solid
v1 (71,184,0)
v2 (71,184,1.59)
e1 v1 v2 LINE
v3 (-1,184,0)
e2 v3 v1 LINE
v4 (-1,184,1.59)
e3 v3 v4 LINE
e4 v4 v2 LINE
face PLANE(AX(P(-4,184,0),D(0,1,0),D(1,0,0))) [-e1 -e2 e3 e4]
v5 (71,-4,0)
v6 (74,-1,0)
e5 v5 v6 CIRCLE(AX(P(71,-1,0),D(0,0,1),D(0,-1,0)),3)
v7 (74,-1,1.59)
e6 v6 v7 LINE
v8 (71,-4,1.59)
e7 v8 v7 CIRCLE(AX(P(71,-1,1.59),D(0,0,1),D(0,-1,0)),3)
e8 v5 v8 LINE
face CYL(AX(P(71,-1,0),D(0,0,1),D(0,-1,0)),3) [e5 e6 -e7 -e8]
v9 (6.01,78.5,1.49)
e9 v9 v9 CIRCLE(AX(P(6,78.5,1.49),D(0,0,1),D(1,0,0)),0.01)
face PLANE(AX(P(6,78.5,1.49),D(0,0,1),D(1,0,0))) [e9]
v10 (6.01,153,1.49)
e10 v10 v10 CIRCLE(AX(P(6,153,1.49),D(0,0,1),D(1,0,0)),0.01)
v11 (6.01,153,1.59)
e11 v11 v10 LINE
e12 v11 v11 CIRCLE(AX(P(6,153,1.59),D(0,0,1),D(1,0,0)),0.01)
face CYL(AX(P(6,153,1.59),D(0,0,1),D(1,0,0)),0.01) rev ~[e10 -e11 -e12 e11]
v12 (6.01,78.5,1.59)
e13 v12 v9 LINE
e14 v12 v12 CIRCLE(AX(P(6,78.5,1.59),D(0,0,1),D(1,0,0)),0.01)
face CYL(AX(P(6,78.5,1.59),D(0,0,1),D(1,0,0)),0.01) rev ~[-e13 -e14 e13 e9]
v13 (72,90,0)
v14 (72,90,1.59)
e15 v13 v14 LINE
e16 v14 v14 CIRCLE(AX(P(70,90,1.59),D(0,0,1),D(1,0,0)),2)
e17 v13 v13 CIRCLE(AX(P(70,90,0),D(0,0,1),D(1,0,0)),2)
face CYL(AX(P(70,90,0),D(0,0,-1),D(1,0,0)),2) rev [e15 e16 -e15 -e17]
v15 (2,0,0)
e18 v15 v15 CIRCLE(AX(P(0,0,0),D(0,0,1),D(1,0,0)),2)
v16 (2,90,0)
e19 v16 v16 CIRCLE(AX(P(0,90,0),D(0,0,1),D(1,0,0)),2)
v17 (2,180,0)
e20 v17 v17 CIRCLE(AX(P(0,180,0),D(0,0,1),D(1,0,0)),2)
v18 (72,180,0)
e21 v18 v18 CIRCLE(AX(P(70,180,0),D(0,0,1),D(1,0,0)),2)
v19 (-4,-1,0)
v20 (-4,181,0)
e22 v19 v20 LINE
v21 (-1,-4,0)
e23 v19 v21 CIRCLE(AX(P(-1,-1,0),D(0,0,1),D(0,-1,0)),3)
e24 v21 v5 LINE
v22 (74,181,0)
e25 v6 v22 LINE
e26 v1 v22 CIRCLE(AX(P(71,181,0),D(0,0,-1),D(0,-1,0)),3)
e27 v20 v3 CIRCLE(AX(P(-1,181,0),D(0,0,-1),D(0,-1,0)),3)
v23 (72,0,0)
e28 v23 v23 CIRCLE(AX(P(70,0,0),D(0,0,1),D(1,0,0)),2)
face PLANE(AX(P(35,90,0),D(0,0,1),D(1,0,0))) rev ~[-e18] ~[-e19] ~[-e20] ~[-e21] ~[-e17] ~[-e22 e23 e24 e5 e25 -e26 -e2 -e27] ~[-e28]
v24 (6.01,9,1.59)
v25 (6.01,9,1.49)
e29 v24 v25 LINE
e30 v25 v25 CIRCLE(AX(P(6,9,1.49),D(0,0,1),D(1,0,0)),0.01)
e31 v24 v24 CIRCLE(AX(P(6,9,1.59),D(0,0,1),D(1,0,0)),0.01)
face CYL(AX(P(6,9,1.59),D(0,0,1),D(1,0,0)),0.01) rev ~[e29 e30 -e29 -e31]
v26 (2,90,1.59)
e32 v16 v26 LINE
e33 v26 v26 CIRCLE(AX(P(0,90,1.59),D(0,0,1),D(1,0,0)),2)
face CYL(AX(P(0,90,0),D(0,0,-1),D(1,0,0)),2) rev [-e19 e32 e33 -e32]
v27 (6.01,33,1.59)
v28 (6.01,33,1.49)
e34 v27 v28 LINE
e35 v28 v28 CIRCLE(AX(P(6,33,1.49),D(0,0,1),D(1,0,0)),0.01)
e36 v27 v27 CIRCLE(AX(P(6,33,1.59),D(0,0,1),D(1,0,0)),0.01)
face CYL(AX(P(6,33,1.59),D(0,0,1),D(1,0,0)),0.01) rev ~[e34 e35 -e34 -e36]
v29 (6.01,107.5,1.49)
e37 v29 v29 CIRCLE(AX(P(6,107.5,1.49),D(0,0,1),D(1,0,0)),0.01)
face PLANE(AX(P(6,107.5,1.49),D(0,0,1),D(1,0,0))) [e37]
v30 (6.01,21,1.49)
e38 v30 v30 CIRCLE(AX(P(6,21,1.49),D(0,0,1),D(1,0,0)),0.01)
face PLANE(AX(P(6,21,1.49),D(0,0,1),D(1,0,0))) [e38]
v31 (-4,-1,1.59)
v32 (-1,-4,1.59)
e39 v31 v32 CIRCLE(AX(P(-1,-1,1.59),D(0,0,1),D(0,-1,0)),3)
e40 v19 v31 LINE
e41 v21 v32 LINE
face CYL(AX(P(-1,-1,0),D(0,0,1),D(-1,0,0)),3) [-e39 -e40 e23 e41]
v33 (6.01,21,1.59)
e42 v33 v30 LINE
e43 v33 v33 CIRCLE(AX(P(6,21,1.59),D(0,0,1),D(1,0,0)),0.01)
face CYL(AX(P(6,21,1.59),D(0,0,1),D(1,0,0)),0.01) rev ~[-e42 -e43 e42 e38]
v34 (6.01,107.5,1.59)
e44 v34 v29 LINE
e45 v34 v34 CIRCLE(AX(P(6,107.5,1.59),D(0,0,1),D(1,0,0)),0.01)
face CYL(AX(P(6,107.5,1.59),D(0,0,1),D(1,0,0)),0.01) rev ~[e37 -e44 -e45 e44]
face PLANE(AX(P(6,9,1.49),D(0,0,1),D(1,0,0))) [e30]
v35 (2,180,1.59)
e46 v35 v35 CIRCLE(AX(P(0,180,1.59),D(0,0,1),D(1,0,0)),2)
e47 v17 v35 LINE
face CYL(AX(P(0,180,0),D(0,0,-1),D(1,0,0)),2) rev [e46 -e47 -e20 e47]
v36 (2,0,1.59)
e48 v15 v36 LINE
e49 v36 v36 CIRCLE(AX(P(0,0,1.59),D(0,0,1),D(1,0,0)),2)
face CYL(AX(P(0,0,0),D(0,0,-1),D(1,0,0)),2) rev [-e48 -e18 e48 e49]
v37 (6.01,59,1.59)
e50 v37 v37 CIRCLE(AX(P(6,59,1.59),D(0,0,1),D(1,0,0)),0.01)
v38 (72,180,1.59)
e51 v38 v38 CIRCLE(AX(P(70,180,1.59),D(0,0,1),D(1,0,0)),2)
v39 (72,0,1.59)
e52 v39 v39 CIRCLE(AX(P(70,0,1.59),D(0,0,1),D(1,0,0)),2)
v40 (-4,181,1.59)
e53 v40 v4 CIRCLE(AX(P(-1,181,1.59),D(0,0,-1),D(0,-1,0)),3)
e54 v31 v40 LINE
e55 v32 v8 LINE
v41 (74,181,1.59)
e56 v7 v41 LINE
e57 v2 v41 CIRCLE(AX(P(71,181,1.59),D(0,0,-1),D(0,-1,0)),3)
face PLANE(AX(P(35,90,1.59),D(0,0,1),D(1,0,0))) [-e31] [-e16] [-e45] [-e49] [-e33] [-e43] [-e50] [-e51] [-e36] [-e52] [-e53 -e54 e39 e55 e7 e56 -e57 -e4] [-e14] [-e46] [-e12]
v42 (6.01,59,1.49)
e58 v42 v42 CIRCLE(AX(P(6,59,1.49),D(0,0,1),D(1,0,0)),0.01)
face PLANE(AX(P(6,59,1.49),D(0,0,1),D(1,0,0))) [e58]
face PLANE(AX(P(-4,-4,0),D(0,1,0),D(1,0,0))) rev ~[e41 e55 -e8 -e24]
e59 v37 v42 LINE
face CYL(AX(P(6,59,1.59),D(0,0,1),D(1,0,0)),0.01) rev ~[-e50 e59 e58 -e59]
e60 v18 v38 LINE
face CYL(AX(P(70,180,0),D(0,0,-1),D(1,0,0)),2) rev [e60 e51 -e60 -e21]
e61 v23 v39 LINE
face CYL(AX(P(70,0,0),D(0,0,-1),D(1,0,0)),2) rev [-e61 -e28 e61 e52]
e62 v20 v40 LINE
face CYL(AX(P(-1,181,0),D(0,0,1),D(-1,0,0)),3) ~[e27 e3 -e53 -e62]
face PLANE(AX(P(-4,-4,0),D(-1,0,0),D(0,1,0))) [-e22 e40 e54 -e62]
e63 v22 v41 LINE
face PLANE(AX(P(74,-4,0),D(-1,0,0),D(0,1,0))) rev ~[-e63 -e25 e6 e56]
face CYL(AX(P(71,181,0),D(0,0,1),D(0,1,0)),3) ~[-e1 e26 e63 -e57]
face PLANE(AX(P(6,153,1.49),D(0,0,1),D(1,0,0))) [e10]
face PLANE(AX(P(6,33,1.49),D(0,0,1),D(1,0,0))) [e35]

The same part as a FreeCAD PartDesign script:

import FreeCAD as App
import Part
import Sketcher


def edges_at(feature, points):
    """Names of the edges that pass closest to the given points."""
    edges = feature.Shape.Edges
    near = lambda p: min(range(len(edges)), key=lambda i: edges[i].distToShape(Part.Vertex(*p))[0])
    return sorted({f"Edge{near(p) + 1}" for p in points})


def add_polygon(sketch, points):
    """Adds a closed chain of lines whose ends are joined by coincident constraints."""
    first, n = sketch.GeometryCount, len(points)
    for a, b in zip(points, points[1:] + points[:1]):
        sketch.addGeometry(Part.LineSegment(App.Vector(*a, 0), App.Vector(*b, 0)), False)
    for i in range(n):
        sketch.addConstraint(Sketcher.Constraint("Coincident", first + i, 2, first + (i + 1) % n, 1))

doc = App.newDocument("Part")
body = doc.addObject("PartDesign::Body", "Body")

# Sketch on XY plane
sketch1 = body.newObject("Sketcher::SketchObject", "Sketch")
sketch1.AttachmentSupport = (doc.getObject("XY_Plane"), [""])
sketch1.MapMode = "FlatFace"
add_polygon(sketch1, [(-4, 184), (-4, -4), (74, -4), (74, 184)])  # lines 0-3
sketch1.addGeometry(Part.Circle(App.Vector(0, 0, 0), App.Vector(0, 0, 1), 2), False)  # 4
sketch1.addGeometry(Part.Circle(App.Vector(70, 0, 0), App.Vector(0, 0, 1), 2), False)  # 5
sketch1.addGeometry(Part.Circle(App.Vector(0, 90, 0), App.Vector(0, 0, 1), 2), False)  # 6
sketch1.addGeometry(Part.Circle(App.Vector(0, 180, 0), App.Vector(0, 0, 1), 2), False)  # 7
sketch1.addGeometry(Part.Circle(App.Vector(70, 90, 0), App.Vector(0, 0, 1), 2), False)  # 8
sketch1.addGeometry(Part.Circle(App.Vector(70, 180, 0), App.Vector(0, 0, 1), 2), False)  # 9
sketch1.addConstraint([
    Sketcher.Constraint("Vertical", 0),
    Sketcher.Constraint("Horizontal", 1),
    Sketcher.Constraint("Vertical", 2),
    Sketcher.Constraint("Horizontal", 3),
    Sketcher.Constraint("Coincident", 4, 3, -1, 1),
    Sketcher.Constraint("Equal", 4, 5),
    Sketcher.Constraint("Equal", 5, 6),
    Sketcher.Constraint("Equal", 6, 7),
    Sketcher.Constraint("Equal", 7, 8),
    Sketcher.Constraint("Equal", 8, 9),
    Sketcher.Constraint("PointOnObject", 5, 3, -1),
    Sketcher.Constraint("PointOnObject", 6, 3, -2),
    Sketcher.Constraint("PointOnObject", 7, 3, -2),
    Sketcher.Constraint("Horizontal", 6, 3, 8, 3),
    Sketcher.Constraint("Horizontal", 7, 3, 9, 3),
    Sketcher.Constraint("Vertical", 5, 3, 8, 3),
    Sketcher.Constraint("Vertical", 8, 3, 9, 3),
    Sketcher.Constraint("Diameter", 4, 4.0),
    Sketcher.Constraint("DistanceX", 1, 1, 1, 2, 78.0),
    Sketcher.Constraint("DistanceY", 0, 2, 0, 1, 188.0),
    Sketcher.Constraint("DistanceX", -1, 1, 5, 3, 70.0),
    Sketcher.Constraint("DistanceY", -1, 1, 6, 3, 90.0),
    Sketcher.Constraint("DistanceY", -1, 1, 7, 3, 180.0),
    Sketcher.Constraint("DistanceX", 0, 2, -1, 1, 4.0),
    Sketcher.Constraint("DistanceY", 0, 2, -1, 1, 4.0),
])
pad1 = body.newObject("PartDesign::Pad", "Pad")
pad1.Profile = sketch1
pad1.Length = 1.59
doc.recompute()

fillet = body.newObject("PartDesign::Fillet", "Fillet")
fillet.Base = (pad1, edges_at(pad1, [
    (-4, -4, 0.795),
    (74, -4, 0.795),
    (74, 184, 0.795),
    (-4, 184, 0.795),
]))
fillet.Radius = 3

# Sketch on XY plane
sketch2 = body.newObject("Sketcher::SketchObject", "Sketch001")
sketch2.AttachmentSupport = (doc.getObject("XY_Plane"), [""])
sketch2.MapMode = "FlatFace"
sketch2.AttachmentOffset = App.Placement(App.Vector(0, 0, 1.59), App.Rotation())
sketch2.addGeometry([
    Part.Circle(App.Vector(6, 153, 0), App.Vector(0, 0, 1), 0.01),  # 0
    Part.Circle(App.Vector(6, 107.5, 0), App.Vector(0, 0, 1), 0.01),  # 1
    Part.Circle(App.Vector(6, 78.5, 0), App.Vector(0, 0, 1), 0.01),  # 2
    Part.Circle(App.Vector(6, 59, 0), App.Vector(0, 0, 1), 0.01),  # 3
    Part.Circle(App.Vector(6, 33, 0), App.Vector(0, 0, 1), 0.01),  # 4
    Part.Circle(App.Vector(6, 21, 0), App.Vector(0, 0, 1), 0.01),  # 5
    Part.Circle(App.Vector(6, 9, 0), App.Vector(0, 0, 1), 0.01),  # 6
], False)
sketch2.addConstraint([
    Sketcher.Constraint("Equal", 0, 1),
    Sketcher.Constraint("Equal", 1, 2),
    Sketcher.Constraint("Equal", 2, 3),
    Sketcher.Constraint("Equal", 3, 4),
    Sketcher.Constraint("Equal", 4, 5),
    Sketcher.Constraint("Equal", 5, 6),
    Sketcher.Constraint("Vertical", 0, 3, 1, 3),
    Sketcher.Constraint("Vertical", 1, 3, 2, 3),
    Sketcher.Constraint("Vertical", 2, 3, 3, 3),
    Sketcher.Constraint("Vertical", 3, 3, 4, 3),
    Sketcher.Constraint("Vertical", 4, 3, 5, 3),
    Sketcher.Constraint("Vertical", 5, 3, 6, 3),
    Sketcher.Constraint("Diameter", 0, 0.02),
    Sketcher.Constraint("DistanceX", -1, 1, 0, 3, 6.0),
    Sketcher.Constraint("DistanceY", -1, 1, 0, 3, 153.0),
    Sketcher.Constraint("DistanceY", -1, 1, 3, 3, 59.0),
    Sketcher.Constraint("DistanceY", -1, 1, 4, 3, 33.0),
    Sketcher.Constraint("DistanceY", -1, 1, 5, 3, 21.0),
    Sketcher.Constraint("DistanceY", -1, 1, 6, 3, 9.0),
    Sketcher.Constraint("DistanceY", 2, 3, 1, 3, 29.0),
    Sketcher.Constraint("DistanceY", -1, 1, 1, 3, 107.5),
])
pocket1 = body.newObject("PartDesign::Pocket", "Pocket")
pocket1.Profile = sketch2
pocket1.Length = 0.1

doc.recompute()
